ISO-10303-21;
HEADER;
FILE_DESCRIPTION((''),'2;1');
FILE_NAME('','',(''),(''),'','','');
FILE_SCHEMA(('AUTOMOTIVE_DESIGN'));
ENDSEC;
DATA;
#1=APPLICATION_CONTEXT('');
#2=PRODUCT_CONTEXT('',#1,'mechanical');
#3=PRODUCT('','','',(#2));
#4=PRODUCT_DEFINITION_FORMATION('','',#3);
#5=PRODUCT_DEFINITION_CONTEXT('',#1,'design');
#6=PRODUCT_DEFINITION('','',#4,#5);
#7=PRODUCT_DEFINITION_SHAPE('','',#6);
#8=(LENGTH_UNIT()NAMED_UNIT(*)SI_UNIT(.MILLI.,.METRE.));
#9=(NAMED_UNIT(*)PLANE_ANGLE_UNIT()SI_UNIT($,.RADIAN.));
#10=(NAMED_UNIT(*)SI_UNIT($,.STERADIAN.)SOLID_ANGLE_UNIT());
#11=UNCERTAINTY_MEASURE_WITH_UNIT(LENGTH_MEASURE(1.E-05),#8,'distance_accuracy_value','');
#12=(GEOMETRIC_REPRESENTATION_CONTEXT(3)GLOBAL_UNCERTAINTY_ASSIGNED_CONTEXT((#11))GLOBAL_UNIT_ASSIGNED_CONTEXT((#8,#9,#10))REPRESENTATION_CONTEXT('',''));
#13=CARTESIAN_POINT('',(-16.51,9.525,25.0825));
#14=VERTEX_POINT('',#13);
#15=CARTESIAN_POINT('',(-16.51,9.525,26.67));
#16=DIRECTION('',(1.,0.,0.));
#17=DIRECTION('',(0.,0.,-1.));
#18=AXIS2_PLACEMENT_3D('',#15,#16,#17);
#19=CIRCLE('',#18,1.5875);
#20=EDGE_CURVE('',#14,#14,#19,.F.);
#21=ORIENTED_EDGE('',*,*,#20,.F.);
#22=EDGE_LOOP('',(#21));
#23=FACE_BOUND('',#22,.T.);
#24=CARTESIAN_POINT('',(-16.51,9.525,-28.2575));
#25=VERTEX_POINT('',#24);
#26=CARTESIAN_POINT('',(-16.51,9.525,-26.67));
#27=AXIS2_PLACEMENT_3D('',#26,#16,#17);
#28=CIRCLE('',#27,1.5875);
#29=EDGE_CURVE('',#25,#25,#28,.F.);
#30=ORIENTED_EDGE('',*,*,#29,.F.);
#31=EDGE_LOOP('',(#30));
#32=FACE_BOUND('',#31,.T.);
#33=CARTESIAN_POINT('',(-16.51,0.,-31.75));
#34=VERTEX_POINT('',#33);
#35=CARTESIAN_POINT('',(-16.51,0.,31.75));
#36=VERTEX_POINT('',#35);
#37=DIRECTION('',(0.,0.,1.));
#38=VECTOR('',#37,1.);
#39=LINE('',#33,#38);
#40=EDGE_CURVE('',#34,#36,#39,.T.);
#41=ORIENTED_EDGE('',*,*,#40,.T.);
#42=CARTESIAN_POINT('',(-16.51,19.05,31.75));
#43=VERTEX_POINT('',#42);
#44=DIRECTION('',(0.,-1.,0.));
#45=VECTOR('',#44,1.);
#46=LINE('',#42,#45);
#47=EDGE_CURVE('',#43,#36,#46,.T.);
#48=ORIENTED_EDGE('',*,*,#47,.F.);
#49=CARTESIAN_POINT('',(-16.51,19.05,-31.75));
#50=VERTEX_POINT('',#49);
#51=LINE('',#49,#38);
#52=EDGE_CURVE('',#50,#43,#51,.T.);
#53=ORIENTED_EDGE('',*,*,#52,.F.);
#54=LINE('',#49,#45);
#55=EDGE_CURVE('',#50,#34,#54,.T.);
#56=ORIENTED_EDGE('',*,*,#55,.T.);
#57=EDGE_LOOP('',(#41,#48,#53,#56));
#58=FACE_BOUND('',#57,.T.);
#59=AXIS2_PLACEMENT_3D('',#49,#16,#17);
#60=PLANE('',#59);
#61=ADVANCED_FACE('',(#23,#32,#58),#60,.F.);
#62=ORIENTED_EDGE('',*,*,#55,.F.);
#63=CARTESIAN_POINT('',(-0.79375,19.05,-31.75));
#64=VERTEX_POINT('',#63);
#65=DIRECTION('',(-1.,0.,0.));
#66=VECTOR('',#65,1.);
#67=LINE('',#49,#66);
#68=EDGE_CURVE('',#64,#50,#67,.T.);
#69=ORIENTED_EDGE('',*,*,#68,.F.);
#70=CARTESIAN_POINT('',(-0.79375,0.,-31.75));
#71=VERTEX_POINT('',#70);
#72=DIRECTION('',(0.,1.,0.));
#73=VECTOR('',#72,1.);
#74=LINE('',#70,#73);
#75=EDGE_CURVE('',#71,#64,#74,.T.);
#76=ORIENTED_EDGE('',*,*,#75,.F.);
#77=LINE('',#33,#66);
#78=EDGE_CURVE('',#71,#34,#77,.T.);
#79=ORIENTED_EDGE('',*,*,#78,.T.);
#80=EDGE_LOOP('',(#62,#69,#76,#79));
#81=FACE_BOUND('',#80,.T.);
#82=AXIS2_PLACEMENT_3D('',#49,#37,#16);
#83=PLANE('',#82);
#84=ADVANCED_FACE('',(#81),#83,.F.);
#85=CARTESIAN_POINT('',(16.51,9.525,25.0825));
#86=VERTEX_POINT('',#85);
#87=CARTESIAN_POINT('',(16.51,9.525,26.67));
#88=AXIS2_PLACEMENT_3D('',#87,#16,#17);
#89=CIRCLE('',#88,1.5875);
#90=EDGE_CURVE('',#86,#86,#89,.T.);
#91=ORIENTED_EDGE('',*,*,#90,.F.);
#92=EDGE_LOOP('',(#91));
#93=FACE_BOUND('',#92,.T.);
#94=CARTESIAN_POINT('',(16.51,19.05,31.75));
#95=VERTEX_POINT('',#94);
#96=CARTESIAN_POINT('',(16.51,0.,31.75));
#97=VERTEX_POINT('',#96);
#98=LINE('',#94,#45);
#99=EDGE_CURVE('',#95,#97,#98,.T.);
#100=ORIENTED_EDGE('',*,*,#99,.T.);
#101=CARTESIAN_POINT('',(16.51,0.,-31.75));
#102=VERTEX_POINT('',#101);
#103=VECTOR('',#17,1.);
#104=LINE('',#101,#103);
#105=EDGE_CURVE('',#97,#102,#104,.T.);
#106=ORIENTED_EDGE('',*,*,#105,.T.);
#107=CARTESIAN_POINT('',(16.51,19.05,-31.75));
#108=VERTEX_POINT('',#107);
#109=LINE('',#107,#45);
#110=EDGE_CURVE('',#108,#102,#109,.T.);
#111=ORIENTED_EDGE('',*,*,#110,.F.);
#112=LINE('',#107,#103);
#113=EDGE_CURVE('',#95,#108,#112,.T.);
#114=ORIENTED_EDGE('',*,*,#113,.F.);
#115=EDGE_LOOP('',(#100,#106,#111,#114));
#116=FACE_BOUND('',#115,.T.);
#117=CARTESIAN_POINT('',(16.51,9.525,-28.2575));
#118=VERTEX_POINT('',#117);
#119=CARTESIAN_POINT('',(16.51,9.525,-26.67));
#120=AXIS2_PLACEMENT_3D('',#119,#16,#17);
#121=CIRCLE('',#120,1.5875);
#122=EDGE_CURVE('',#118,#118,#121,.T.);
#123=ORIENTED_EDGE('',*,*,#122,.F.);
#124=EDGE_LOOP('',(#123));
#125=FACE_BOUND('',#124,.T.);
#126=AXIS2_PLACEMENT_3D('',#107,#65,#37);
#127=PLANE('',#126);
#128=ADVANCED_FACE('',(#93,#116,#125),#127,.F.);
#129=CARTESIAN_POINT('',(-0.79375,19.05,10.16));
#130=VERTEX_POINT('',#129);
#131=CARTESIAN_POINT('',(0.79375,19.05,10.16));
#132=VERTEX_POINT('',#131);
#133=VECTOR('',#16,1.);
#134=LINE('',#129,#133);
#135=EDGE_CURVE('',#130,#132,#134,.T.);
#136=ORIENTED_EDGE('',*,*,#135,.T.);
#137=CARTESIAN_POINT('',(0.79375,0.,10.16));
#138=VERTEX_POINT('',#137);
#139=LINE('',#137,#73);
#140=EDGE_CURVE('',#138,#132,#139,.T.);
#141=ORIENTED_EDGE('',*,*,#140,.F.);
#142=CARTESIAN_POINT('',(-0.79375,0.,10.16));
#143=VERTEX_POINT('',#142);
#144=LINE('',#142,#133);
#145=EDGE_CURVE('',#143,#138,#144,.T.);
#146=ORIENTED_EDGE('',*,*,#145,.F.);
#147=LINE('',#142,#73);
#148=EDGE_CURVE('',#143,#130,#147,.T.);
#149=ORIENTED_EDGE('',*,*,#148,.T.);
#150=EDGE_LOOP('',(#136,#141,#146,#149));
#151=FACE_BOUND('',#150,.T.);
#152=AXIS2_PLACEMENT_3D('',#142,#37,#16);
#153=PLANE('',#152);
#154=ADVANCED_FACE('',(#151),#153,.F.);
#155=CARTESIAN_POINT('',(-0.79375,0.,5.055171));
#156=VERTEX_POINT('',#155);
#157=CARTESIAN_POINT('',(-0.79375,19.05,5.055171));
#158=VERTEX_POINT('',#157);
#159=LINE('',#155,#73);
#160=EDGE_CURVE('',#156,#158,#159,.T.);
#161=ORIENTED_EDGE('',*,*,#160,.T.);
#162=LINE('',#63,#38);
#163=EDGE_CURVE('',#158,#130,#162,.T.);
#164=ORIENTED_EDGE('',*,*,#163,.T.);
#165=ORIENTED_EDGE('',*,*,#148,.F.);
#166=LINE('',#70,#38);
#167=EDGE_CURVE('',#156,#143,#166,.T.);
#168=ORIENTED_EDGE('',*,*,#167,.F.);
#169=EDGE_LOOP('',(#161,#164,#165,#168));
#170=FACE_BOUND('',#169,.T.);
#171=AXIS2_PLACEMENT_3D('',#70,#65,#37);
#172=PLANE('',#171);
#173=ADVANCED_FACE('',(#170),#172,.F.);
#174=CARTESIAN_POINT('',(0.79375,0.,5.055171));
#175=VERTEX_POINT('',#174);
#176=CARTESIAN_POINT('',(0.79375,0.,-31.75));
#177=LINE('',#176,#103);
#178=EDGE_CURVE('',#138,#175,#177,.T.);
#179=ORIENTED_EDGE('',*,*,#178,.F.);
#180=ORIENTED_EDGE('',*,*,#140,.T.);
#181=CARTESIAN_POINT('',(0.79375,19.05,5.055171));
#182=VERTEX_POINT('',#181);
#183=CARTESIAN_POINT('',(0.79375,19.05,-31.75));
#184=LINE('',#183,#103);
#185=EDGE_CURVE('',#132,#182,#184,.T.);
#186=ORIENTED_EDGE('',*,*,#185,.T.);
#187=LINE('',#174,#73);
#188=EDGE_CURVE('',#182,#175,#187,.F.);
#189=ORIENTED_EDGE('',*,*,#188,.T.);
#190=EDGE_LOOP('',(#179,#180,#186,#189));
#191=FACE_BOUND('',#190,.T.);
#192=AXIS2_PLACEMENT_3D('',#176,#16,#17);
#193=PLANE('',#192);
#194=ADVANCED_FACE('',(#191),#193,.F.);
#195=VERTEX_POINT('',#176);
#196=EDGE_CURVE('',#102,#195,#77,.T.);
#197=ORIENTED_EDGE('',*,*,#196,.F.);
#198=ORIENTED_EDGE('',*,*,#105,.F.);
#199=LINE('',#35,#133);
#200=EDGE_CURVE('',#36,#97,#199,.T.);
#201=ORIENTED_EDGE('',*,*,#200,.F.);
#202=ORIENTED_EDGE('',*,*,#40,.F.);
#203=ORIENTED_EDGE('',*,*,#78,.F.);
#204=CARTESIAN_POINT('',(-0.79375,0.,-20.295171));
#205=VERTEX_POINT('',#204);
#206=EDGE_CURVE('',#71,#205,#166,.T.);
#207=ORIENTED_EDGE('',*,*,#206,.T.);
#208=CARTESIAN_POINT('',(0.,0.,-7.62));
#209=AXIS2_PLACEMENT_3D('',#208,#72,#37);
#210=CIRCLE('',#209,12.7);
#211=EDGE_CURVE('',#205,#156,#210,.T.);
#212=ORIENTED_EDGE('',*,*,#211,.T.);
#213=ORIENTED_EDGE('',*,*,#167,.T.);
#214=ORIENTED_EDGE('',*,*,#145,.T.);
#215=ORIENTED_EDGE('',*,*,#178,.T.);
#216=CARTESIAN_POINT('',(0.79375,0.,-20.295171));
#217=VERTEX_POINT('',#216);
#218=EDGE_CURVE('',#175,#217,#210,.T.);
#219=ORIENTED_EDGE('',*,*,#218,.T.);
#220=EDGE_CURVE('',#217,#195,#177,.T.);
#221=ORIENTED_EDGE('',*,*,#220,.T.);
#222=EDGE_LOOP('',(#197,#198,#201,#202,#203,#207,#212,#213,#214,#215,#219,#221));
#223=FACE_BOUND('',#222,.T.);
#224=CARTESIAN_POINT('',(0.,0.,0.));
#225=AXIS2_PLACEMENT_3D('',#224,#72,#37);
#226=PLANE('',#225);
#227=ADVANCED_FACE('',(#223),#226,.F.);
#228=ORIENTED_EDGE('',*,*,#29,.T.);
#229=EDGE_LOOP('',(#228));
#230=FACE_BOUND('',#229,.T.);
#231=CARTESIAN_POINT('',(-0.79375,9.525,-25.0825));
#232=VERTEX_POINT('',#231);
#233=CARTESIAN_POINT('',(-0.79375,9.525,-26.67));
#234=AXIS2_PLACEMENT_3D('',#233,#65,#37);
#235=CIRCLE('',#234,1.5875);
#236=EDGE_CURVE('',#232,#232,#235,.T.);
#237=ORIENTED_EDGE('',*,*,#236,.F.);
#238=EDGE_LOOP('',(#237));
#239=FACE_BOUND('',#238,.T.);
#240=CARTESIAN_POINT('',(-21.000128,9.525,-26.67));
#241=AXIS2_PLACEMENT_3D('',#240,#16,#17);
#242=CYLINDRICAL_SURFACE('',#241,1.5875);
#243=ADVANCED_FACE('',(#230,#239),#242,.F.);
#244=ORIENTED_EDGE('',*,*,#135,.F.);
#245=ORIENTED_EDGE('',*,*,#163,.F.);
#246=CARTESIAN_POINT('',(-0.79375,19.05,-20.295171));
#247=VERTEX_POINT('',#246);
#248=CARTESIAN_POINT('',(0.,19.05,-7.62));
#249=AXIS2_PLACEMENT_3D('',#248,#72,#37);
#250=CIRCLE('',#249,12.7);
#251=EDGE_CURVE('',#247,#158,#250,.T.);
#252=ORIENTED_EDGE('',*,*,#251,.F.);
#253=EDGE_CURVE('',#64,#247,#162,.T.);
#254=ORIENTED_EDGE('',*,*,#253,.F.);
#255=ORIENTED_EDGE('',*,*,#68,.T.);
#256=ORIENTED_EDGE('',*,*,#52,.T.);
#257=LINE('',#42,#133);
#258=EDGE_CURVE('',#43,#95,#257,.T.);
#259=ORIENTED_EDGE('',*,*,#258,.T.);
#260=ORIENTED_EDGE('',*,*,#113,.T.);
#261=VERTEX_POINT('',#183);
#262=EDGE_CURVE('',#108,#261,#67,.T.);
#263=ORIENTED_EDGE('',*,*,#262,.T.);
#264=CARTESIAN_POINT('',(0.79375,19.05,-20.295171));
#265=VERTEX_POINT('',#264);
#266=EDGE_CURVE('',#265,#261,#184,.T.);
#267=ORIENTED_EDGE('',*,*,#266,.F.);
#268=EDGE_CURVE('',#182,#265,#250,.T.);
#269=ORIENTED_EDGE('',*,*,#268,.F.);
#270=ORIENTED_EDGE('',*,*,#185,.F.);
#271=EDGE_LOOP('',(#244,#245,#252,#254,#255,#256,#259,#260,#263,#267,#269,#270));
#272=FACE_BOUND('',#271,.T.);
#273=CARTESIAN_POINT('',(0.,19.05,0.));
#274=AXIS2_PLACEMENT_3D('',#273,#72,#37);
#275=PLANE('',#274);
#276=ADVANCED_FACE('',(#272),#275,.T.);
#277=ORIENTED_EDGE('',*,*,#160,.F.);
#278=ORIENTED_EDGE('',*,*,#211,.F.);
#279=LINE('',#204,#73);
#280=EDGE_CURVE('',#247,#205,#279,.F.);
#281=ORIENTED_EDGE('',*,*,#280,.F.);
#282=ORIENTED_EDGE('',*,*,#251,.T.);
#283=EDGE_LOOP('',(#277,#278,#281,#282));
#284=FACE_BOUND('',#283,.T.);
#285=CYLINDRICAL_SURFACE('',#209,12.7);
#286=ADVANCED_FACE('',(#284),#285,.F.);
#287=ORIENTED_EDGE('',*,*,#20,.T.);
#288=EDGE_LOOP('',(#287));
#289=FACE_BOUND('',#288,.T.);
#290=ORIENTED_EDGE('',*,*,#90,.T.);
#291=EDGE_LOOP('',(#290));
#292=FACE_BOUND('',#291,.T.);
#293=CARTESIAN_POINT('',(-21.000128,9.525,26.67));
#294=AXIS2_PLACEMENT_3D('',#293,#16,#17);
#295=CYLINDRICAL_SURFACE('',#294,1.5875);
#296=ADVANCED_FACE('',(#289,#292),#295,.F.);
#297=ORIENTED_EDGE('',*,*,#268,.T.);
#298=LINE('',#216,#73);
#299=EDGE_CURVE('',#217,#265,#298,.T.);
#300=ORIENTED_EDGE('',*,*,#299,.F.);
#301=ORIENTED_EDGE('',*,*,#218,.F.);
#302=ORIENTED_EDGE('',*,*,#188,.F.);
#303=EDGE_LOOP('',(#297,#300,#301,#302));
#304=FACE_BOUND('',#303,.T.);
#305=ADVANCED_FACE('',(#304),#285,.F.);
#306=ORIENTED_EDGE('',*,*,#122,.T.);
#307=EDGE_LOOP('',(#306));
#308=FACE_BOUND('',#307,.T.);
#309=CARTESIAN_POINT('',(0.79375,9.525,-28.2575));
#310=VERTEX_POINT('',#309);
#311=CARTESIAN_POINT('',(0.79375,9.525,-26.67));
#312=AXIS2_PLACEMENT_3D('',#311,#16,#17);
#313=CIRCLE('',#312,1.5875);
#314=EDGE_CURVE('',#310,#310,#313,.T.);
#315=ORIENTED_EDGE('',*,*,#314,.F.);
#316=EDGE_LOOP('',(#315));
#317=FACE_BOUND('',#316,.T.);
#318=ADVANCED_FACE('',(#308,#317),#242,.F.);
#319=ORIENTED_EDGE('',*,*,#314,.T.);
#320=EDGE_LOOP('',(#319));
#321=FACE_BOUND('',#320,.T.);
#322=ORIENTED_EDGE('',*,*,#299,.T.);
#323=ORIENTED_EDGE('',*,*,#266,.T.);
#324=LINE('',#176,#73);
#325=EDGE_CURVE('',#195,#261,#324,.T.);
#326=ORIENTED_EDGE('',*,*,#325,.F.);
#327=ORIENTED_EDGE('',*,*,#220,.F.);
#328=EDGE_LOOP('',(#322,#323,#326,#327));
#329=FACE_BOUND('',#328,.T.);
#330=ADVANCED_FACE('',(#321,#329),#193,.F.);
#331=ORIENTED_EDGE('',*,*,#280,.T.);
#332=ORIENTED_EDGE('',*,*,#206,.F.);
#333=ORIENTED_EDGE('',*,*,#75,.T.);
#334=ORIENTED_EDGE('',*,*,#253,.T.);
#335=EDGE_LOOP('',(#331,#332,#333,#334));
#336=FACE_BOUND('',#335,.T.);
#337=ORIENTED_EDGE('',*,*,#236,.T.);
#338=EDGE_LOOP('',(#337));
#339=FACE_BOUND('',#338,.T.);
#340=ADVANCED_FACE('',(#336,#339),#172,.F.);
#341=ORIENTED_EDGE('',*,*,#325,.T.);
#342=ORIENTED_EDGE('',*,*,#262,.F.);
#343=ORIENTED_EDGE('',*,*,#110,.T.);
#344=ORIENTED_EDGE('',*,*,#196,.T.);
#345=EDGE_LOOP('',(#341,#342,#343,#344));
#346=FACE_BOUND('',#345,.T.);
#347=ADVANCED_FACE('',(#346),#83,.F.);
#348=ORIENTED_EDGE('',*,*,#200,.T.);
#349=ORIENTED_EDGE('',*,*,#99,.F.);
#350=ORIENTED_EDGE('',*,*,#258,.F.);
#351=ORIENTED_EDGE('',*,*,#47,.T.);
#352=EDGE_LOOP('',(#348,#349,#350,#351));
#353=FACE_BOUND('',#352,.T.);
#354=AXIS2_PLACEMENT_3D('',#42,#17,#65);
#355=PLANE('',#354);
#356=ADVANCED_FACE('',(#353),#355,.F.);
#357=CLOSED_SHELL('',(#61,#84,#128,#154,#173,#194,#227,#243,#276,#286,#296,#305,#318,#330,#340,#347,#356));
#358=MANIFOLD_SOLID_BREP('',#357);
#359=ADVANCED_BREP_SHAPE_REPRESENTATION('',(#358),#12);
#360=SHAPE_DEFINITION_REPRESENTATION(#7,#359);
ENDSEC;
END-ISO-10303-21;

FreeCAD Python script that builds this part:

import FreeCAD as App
import Part
import Sketcher

V = App.Vector
Q = App.Units.Quantity


def add_polygon(sketch, points):
    """Adds a closed chain of lines whose ends are joined by coincident constraints."""
    first, n = sketch.GeometryCount, len(points)
    for a, b in zip(points, points[1:] + points[:1]):
        sketch.addGeometry(Part.LineSegment(App.Vector(*a, 0), App.Vector(*b, 0)), False)
    for i in range(n):
        sketch.addConstraint(Sketcher.Constraint("Coincident", first + i, 2, first + (i + 1) % n, 1))

doc = App.newDocument("Part")
body = doc.addObject("PartDesign::Body", "Body")

# Sketch on XZ plane
sketch1 = body.newObject("Sketcher::SketchObject", "Sketch")
sketch1.AttachmentSupport = (doc.getObject("XZ_Plane"), [""])
sketch1.MapMode = "FlatFace"
add_polygon(sketch1, [(-16.51, -31.75), (-16.51, 31.75), (16.51, 31.75), (16.51, -31.75)])  # lines 0-3
sketch1.addConstraint(Sketcher.Constraint("Vertical", 0))
sketch1.addConstraint(Sketcher.Constraint("Horizontal", 1))
sketch1.addConstraint(Sketcher.Constraint("Vertical", 2))
sketch1.addConstraint(Sketcher.Constraint("Horizontal", 3))
sketch1.addConstraint(Sketcher.Constraint("Symmetric", 0, 2, 2, 2, -1, 1))
sketch1.addConstraint(Sketcher.Constraint("DistanceX", 1, 1, 1, 2, Q("1.3 in")))
sketch1.addConstraint(Sketcher.Constraint("DistanceY", 0, 1, 0, 2, Q("2.5 in")))
pad1 = body.newObject("PartDesign::Pad", "Pad")
pad1.Profile = sketch1
pad1.Length = Q("0.75 in")
pad1.Reversed = True

# Sketch on XZ plane
sketch2 = body.newObject("Sketcher::SketchObject", "Sketch001")
sketch2.AttachmentSupport = (doc.getObject("XZ_Plane"), [""])
sketch2.MapMode = "FlatFace"
sketch2.AttachmentOffset = App.Placement(V(0, 0, -0.75 * 25.4), App.Rotation())
add_polygon(sketch2, [(0.79375, -31.75), (-0.79375, -31.75), (-0.79375, 10.16), (0.79375, 10.16)])  # lines 0-3
sketch2.addConstraint(Sketcher.Constraint("Horizontal", 0))
sketch2.addConstraint(Sketcher.Constraint("Vertical", 1))
sketch2.addConstraint(Sketcher.Constraint("Horizontal", 2))
sketch2.addConstraint(Sketcher.Constraint("Vertical", 3))
sketch2.addConstraint(Sketcher.Constraint("DistanceY", 1, 1, 1, 2, Q("1.65 in")))
sketch2.addConstraint(Sketcher.Constraint("DistanceY", -1, 1, 1, 2, Q("0.4 in")))
sketch2.addConstraint(Sketcher.Constraint("DistanceX", 0, 2, 0, 1, Q("0.0625 in")))
sketch2.addConstraint(Sketcher.Constraint("DistanceX", 0, 2, -1, 1, Q("0.03125 in")))
pocket1 = body.newObject("PartDesign::Pocket", "Pocket")
pocket1.Profile = sketch2
pocket1.Length = Q("0.75 in")
pocket1.Reversed = True

# Sketch on XZ plane
sketch3 = body.newObject("Sketcher::SketchObject", "Sketch002")
sketch3.AttachmentSupport = (doc.getObject("XZ_Plane"), [""])
sketch3.MapMode = "FlatFace"
sketch3.AttachmentOffset = App.Placement(V(0, 0, -0.75 * 25.4), App.Rotation())
sketch3.addGeometry(Part.Circle(V(0, -7.62, 0), V(0, 0, 1), 12.7), False)
sketch3.addConstraint(Sketcher.Constraint("PointOnObject", 0, 3, -2))
sketch3.addConstraint(Sketcher.Constraint("Diameter", 0, Q("1 in")))
sketch3.addConstraint(Sketcher.Constraint("DistanceY", 0, 3, -1, 1, Q("0.3 in")))
pocket2 = body.newObject("PartDesign::Pocket", "Pocket001")
pocket2.Profile = sketch3
pocket2.Length = Q("0.75 in")
pocket2.Reversed = True

# Sketch on YZ plane
sketch4 = body.newObject("Sketcher::SketchObject", "Sketch003")
sketch4.AttachmentSupport = (doc.getObject("YZ_Plane"), [""])
sketch4.MapMode = "FlatFace"
sketch4.AttachmentOffset = App.Placement(V(0, 0, 0.65 * 25.4), App.Rotation())
sketch4.addGeometry(Part.Circle(V(9.525, 26.67, 0), V(0, 0, 1), 1.5875), False)
sketch4.addGeometry(Part.Circle(V(9.525, -26.67, 0), V(0, 0, 1), 1.5875), False)
sketch4.addConstraint(Sketcher.Constraint("Equal", 0, 1))
sketch4.addConstraint(Sketcher.Constraint("Symmetric", 0, 3, 1, 3, -1))
sketch4.addConstraint(Sketcher.Constraint("Diameter", 0, Q("0.125 in")))
sketch4.addConstraint(Sketcher.Constraint("DistanceY", 1, 3, 0, 3, Q("2.1 in")))
sketch4.addConstraint(Sketcher.Constraint("DistanceX", -1, 1, 0, 3, Q("0.375 in")))
pocket3 = body.newObject("PartDesign::Pocket", "Pocket002")
pocket3.Profile = sketch4
pocket3.Length = Q("1.3 in")

doc.recompute()
